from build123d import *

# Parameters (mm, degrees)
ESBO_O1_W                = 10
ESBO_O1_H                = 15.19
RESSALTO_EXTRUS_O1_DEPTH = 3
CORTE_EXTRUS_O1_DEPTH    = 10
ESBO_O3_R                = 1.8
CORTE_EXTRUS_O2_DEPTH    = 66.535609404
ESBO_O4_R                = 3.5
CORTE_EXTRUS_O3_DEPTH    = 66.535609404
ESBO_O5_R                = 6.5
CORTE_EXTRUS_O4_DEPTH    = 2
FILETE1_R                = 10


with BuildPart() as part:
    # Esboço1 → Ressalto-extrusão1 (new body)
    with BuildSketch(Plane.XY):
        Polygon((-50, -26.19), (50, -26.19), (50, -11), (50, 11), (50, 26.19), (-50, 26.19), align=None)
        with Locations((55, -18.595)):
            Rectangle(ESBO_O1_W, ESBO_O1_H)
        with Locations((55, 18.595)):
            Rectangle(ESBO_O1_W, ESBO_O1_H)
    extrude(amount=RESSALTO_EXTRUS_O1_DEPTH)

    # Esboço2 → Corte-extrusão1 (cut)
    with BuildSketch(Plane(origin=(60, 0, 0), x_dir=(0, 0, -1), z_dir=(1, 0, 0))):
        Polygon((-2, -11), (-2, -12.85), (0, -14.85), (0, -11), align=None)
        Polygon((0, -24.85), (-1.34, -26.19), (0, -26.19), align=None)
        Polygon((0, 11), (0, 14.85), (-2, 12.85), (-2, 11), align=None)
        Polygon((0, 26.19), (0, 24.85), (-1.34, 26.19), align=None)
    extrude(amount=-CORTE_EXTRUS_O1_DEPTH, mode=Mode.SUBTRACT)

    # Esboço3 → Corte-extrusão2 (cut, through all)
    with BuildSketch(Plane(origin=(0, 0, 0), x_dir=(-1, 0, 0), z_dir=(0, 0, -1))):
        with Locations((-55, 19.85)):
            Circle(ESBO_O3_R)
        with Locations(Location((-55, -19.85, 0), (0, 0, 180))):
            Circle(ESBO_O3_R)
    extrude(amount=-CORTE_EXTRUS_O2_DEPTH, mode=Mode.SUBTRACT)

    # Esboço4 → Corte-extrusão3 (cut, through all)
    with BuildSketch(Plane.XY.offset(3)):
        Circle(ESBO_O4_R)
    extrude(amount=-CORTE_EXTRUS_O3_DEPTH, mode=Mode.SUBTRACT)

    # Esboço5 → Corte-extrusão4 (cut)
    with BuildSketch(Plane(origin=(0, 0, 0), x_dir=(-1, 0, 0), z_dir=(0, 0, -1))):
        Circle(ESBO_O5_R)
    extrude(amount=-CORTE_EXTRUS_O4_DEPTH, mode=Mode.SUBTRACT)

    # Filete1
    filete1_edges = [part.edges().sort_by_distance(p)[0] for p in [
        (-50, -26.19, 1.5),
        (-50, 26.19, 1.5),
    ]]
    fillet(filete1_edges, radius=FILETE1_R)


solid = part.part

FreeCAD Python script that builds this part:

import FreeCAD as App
import Part
import Sketcher


def edges_at(feature, points):
    """Names of the edges that pass closest to the given points."""
    edges = feature.Shape.Edges
    near = lambda p: min(range(len(edges)), key=lambda i: edges[i].distToShape(Part.Vertex(*p))[0])
    return sorted({f"Edge{near(p) + 1}" for p in points})


def add_polygon(sketch, points):
    """Adds a closed chain of lines whose ends are joined by coincident constraints."""
    first, n = sketch.GeometryCount, len(points)
    for a, b in zip(points, points[1:] + points[:1]):
        sketch.addGeometry(Part.LineSegment(App.Vector(*a, 0), App.Vector(*b, 0)), False)
    for i in range(n):
        sketch.addConstraint(Sketcher.Constraint("Coincident", first + i, 2, first + (i + 1) % n, 1))

doc = App.newDocument("Part")
body = doc.addObject("PartDesign::Body", "Body")

# Sketch on XY plane
sketch1 = body.newObject("Sketcher::SketchObject", "Sketch")
sketch1.AttachmentSupport = (doc.getObject("XY_Plane"), [""])
sketch1.MapMode = "FlatFace"
add_polygon(sketch1, [(-50, -26), (60, -26), (60, -11), (50, -11), (50, 11), (60, 11), (60, 26), (-50, 26)])  # lines 0-7
sketch1.addConstraint([
    Sketcher.Constraint("Horizontal", 0),
    Sketcher.Constraint("Vertical", 1),
    Sketcher.Constraint("Horizontal", 2),
    Sketcher.Constraint("Vertical", 3),
    Sketcher.Constraint("Horizontal", 4),
    Sketcher.Constraint("Vertical", 5),
    Sketcher.Constraint("Horizontal", 6),
    Sketcher.Constraint("Vertical", 7),
    Sketcher.Constraint("Symmetric", 1, 2, 4, 2, -1),
    Sketcher.Constraint("Equal", 1, 5),
    Sketcher.Constraint("DistanceX", 0, 1, 0, 2, 110.0),
    Sketcher.Constraint("DistanceX", 2, 2, 2, 1, 10.0),
    Sketcher.Constraint("DistanceY", 3, 1, 3, 2, 22.0),
    Sketcher.Constraint("DistanceX", -1, 1, 0, 2, 60.0),
    Sketcher.Constraint("DistanceY", 1, 1, 1, 2, 15.19),
])
pad1 = body.newObject("PartDesign::Pad", "Pad")
pad1.Profile = sketch1
pad1.Length = 3

# Sketch on YZ plane
sketch2 = body.newObject("Sketcher::SketchObject", "Sketch001")
sketch2.AttachmentSupport = (doc.getObject("YZ_Plane"), [""])
sketch2.MapMode = "FlatFace"
sketch2.AttachmentOffset = App.Placement(App.Vector(0, 0, 60), App.Rotation())
add_polygon(sketch2, [(-11, 2), (-12.8, 2), (-14.8, 0), (-11, 0)])  # lines 0-3
add_polygon(sketch2, [(-24.9, 0), (-26.2, 1.3), (-26.2, 0)])  # lines 4-6
add_polygon(sketch2, [(11, 0), (14.8, 0), (12.8, 2), (11, 2)])  # lines 7-10
add_polygon(sketch2, [(24.9, 0), (26.2, 0), (26.2, 1.3)])  # lines 11-13
sketch2.addConstraint([
    Sketcher.Constraint("Horizontal", 0),
    Sketcher.Constraint("Horizontal", 2),
    Sketcher.Constraint("Vertical", 3),
    Sketcher.Constraint("Vertical", 5),
    Sketcher.Constraint("Horizontal", 6),
    Sketcher.Constraint("Horizontal", 7),
    Sketcher.Constraint("Horizontal", 9),
    Sketcher.Constraint("Vertical", 10),
    Sketcher.Constraint("Horizontal", 11),
    Sketcher.Constraint("Vertical", 12),
    Sketcher.Constraint("Symmetric", 1, 2, 7, 2, -1, 1),
    Sketcher.Constraint("Symmetric", 5, 2, 11, 2, -1, 1),
    Sketcher.Constraint("Symmetric", 0, 2, 8, 2, -2),
    Sketcher.Constraint("Symmetric", 2, 2, 10, 2, -2),
    Sketcher.Constraint("Symmetric", 6, 2, 13, 2, -2),
    Sketcher.Constraint("Perpendicular", 1, 4),
    Sketcher.Constraint("Parallel", 4, 8),
    Sketcher.Constraint("Perpendicular", 8, 13),
    Sketcher.Constraint("DistanceY", 3, 1, 3, 2, 2.0),
    Sketcher.Constraint("DistanceX", 2, 2, -1, 1, 11.0),
    Sketcher.Constraint("DistanceX", 6, 2, 1, 2, 10.0),
    Sketcher.Constraint("DistanceX", 0, 2, 0, 1, 1.85),
    Sketcher.Constraint("DistanceX", 6, 1, 6, 2, 1.34),
])
pocket1 = body.newObject("PartDesign::Pocket", "Pocket")
pocket1.Profile = sketch2
pocket1.Length = 10

# Sketch on XY plane
sketch3 = body.newObject("Sketcher::SketchObject", "Sketch002")
sketch3.AttachmentSupport = (doc.getObject("XY_Plane"), [""])
sketch3.MapMode = "FlatFace"
sketch3.addGeometry([
    Part.Circle(App.Vector(55, 19.9, 0), App.Vector(0, 0, 1), 1.8),
    Part.Circle(App.Vector(55, -19.9, 0), App.Vector(0, 0, 1), 1.8),
], False)
sketch3.addConstraint([
    Sketcher.Constraint("Equal", 0, 1),
    Sketcher.Constraint("Symmetric", 0, 3, 1, 3, -1),
    Sketcher.Constraint("Diameter", 0, 3.6),
    Sketcher.Constraint("DistanceX", -1, 1, 0, 3, 55.0),
    Sketcher.Constraint("DistanceY", 1, 3, 0, 3, 39.7),
])
pocket2 = body.newObject("PartDesign::Pocket", "Pocket001")
pocket2.Profile = sketch3
pocket2.Type = "ThroughAll"
pocket2.Reversed = True

# Sketch on XY plane
sketch4 = body.newObject("Sketcher::SketchObject", "Sketch003")
sketch4.AttachmentSupport = (doc.getObject("XY_Plane"), [""])
sketch4.MapMode = "FlatFace"
sketch4.AttachmentOffset = App.Placement(App.Vector(0, 0, 3), App.Rotation())
sketch4.addGeometry(Part.Circle(App.Vector(0, 0, 0), App.Vector(0, 0, 1), 3.5), False)
sketch4.addConstraint([
    Sketcher.Constraint("Coincident", 0, 3, -1, 1),
    Sketcher.Constraint("Diameter", 0, 7.0),
])
pocket3 = body.newObject("PartDesign::Pocket", "Pocket002")
pocket3.Profile = sketch4
pocket3.Type = "ThroughAll"

# Sketch on XY plane
sketch5 = body.newObject("Sketcher::SketchObject", "Sketch004")
sketch5.AttachmentSupport = (doc.getObject("XY_Plane"), [""])
sketch5.MapMode = "FlatFace"
sketch5.addGeometry(Part.Circle(App.Vector(0, 0, 0), App.Vector(0, 0, 1), 6), False)
sketch5.addConstraint([
    Sketcher.Constraint("Coincident", 0, 3, -1, 1),
    Sketcher.Constraint("Diameter", 0, 13.0),
])
pocket4 = body.newObject("PartDesign::Pocket", "Pocket003")
pocket4.Profile = sketch5
pocket4.Length = 2
pocket4.Reversed = True
doc.recompute()

fillet = body.newObject("PartDesign::Fillet", "Fillet")
fillet.Base = (pocket4, edges_at(pocket4, [(-50, -26.19, 1.5), (-50, 26.19, 1.5)]))
fillet.Radius = 10

doc.recompute()
